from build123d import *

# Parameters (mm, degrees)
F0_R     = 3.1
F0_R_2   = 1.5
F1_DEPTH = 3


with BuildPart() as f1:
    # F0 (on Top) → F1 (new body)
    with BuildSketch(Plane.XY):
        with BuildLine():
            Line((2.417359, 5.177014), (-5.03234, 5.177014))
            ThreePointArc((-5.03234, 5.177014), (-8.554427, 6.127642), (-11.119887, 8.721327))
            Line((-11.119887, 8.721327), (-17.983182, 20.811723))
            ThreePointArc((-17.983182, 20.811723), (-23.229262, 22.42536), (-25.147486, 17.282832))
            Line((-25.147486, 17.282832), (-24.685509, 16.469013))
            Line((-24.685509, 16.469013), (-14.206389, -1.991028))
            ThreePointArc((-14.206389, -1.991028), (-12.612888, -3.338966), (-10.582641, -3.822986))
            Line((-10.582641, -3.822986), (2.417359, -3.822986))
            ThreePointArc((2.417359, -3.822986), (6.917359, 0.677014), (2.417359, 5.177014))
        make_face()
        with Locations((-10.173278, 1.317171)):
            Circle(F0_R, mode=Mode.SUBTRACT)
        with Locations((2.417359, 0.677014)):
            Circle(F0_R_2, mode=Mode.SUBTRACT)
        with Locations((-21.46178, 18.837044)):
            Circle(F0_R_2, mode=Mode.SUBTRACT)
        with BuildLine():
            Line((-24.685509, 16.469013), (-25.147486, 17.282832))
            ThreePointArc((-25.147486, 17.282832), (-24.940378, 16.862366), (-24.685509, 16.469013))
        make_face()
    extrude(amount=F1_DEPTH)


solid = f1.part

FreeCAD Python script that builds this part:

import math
import FreeCAD as App
import Part
import Sketcher
from FreeCAD import Vector
Q = App.Units.Quantity

doc = App.newDocument("Part")
body = doc.addObject("PartDesign::Body", "Body")

# Sketch on XY plane
sketch1 = doc.addObject("Sketcher::SketchObject", "Sketch")
body.addObject(sketch1)
sketch1.AttachmentSupport = (doc.XY_Plane, [""])
sketch1.MapMode = "FlatFace"
sketch1.addGeometry(Part.LineSegment(Vector(2.4, 5.2, 0), Vector(-5, 5.2, 0)), False)
sketch1.addGeometry(Part.ArcOfCircle(Part.Circle(Vector(-5, 12.2, 0), Vector(0, 0, 1), 7), math.radians(-150), math.radians(-90)), False)
sketch1.addGeometry(Part.LineSegment(Vector(-11.1, 8.7, 0), Vector(-18, 20.8, 0)), False)
sketch1.addGeometry(Part.ArcOfCircle(Part.Circle(Vector(-21.5, 18.8, 0), Vector(0, 0, 1), 4), math.radians(30), math.radians(203)), False)
sketch1.addGeometry(Part.ArcOfCircle(Part.Circle(Vector(-21.5, 18.8, 0), Vector(0, 0, 1), 4), math.radians(-157.14), math.radians(-143.7)), False)
sketch1.addGeometry(Part.LineSegment(Vector(-24.7, 16.5, 0), Vector(-14.2, -2, 0)), False)
sketch1.addGeometry(Part.ArcOfCircle(Part.Circle(Vector(-10.6, 0.7, 0), Vector(0, 0, 1), 4.5), math.radians(-144), math.radians(-90)), False)
sketch1.addGeometry(Part.LineSegment(Vector(-10.6, -3.8, 0), Vector(2.4, -3.8, 0)), False)
sketch1.addGeometry(Part.ArcOfCircle(Part.Circle(Vector(2.4, 0.7, 0), Vector(0, 0, 1), 4.5), math.radians(-90), math.radians(90)), False)
sketch1.addGeometry(Part.Circle(Vector(-10.2, 1.3, 0), Vector(0, 0, 1), 3.1), False)
sketch1.addGeometry(Part.Circle(Vector(2.4, 0.7, 0), Vector(0, 0, 1), 1.5), False)
sketch1.addGeometry(Part.Circle(Vector(-21.5, 18.8, 0), Vector(0, 0, 1), 1.5), False)
sketch1.addConstraint(Sketcher.Constraint("Tangent", 0, 2, 1, 2))
sketch1.addConstraint(Sketcher.Constraint("Tangent", 1, 1, 2, 1))
sketch1.addConstraint(Sketcher.Constraint("Tangent", 2, 2, 3, 1))
sketch1.addConstraint(Sketcher.Constraint("Coincident", 3, 2, 4, 1))
sketch1.addConstraint(Sketcher.Constraint("Coincident", 4, 2, 5, 1))
sketch1.addConstraint(Sketcher.Constraint("Coincident", 5, 2, 6, 1))
sketch1.addConstraint(Sketcher.Constraint("Tangent", 6, 2, 7, 1))
sketch1.addConstraint(Sketcher.Constraint("Tangent", 7, 2, 8, 1))
sketch1.addConstraint(Sketcher.Constraint("Tangent", 8, 2, 0, 1))
sketch1.addConstraint(Sketcher.Constraint("Horizontal", 0))
sketch1.addConstraint(Sketcher.Constraint("Horizontal", 7))
sketch1.addConstraint(Sketcher.Constraint("Coincident", 10, 3, 8, 3))
sketch1.addConstraint(Sketcher.Constraint("Coincident", 11, 3, 3, 3))
sketch1.addConstraint(Sketcher.Constraint("Equal", 6, 8))
sketch1.addConstraint(Sketcher.Constraint("Equal", 10, 11))
sketch1.addConstraint(Sketcher.Constraint("Parallel", 2, 5))
sketch1.addConstraint(Sketcher.Constraint("Diameter", 10, Q("3 mm")))
sketch1.addConstraint(Sketcher.Constraint("Radius", 1, Q("7.000001 mm")))
sketch1.addConstraint(Sketcher.Constraint("Radius", 3, Q("4 mm")))
sketch1.addConstraint(Sketcher.Constraint("Diameter", 9, Q("6.2 mm")))
sketch1.addConstraint(Sketcher.Constraint("Radius", 6, Q("4.5 mm")))
sketch1.addConstraint(Sketcher.Constraint("DistanceX", 7, 1, 7, 2, Q("13 mm")))
sketch1.addConstraint(Sketcher.Constraint("Radius", 4, Q("4.000078 mm")))
sketch1.addConstraint(Sketcher.Constraint("DistanceX", 0, 2, 0, 1, Q("7.449699 mm")))
sketch1.addConstraint(Sketcher.Constraint("DistanceX", 11, 3, 2, 2, Q("3.478598 mm")))
sketch1.addConstraint(Sketcher.Constraint("DistanceX", 3, 2, 1, 1, Q("14.027599 mm")))
sketch1.addConstraint(Sketcher.Constraint("DistanceY", 5, 2, 9, 3, Q("3.308199 mm")))
sketch1.addConstraint(Sketcher.Constraint("Distance", 5, Q("21.226989 mm")))
sketch1.addConstraint(Sketcher.Constraint("DistanceX", 1, 3, -1, 1, Q("5.03234 mm")))
sketch1.addConstraint(Sketcher.Constraint("DistanceX", 3, 3, -1, 1, Q("21.46178 mm")))
sketch1.addConstraint(Sketcher.Constraint("DistanceY", -1, 1, 9, 3, Q("1.317171 mm")))
sketch1.addConstraint(Sketcher.Constraint("DistanceY", -1, 1, 3, 2, Q("17.282832 mm")))
sketch1.addConstraint(Sketcher.Constraint("DistanceX", 9, 3, 1, 3, Q("5.140938 mm")))
pad1 = doc.addObject("PartDesign::Pad", "Pad")
body.addObject(pad1)
pad1.Profile = sketch1
pad1.Length = 3

doc.recompute()
